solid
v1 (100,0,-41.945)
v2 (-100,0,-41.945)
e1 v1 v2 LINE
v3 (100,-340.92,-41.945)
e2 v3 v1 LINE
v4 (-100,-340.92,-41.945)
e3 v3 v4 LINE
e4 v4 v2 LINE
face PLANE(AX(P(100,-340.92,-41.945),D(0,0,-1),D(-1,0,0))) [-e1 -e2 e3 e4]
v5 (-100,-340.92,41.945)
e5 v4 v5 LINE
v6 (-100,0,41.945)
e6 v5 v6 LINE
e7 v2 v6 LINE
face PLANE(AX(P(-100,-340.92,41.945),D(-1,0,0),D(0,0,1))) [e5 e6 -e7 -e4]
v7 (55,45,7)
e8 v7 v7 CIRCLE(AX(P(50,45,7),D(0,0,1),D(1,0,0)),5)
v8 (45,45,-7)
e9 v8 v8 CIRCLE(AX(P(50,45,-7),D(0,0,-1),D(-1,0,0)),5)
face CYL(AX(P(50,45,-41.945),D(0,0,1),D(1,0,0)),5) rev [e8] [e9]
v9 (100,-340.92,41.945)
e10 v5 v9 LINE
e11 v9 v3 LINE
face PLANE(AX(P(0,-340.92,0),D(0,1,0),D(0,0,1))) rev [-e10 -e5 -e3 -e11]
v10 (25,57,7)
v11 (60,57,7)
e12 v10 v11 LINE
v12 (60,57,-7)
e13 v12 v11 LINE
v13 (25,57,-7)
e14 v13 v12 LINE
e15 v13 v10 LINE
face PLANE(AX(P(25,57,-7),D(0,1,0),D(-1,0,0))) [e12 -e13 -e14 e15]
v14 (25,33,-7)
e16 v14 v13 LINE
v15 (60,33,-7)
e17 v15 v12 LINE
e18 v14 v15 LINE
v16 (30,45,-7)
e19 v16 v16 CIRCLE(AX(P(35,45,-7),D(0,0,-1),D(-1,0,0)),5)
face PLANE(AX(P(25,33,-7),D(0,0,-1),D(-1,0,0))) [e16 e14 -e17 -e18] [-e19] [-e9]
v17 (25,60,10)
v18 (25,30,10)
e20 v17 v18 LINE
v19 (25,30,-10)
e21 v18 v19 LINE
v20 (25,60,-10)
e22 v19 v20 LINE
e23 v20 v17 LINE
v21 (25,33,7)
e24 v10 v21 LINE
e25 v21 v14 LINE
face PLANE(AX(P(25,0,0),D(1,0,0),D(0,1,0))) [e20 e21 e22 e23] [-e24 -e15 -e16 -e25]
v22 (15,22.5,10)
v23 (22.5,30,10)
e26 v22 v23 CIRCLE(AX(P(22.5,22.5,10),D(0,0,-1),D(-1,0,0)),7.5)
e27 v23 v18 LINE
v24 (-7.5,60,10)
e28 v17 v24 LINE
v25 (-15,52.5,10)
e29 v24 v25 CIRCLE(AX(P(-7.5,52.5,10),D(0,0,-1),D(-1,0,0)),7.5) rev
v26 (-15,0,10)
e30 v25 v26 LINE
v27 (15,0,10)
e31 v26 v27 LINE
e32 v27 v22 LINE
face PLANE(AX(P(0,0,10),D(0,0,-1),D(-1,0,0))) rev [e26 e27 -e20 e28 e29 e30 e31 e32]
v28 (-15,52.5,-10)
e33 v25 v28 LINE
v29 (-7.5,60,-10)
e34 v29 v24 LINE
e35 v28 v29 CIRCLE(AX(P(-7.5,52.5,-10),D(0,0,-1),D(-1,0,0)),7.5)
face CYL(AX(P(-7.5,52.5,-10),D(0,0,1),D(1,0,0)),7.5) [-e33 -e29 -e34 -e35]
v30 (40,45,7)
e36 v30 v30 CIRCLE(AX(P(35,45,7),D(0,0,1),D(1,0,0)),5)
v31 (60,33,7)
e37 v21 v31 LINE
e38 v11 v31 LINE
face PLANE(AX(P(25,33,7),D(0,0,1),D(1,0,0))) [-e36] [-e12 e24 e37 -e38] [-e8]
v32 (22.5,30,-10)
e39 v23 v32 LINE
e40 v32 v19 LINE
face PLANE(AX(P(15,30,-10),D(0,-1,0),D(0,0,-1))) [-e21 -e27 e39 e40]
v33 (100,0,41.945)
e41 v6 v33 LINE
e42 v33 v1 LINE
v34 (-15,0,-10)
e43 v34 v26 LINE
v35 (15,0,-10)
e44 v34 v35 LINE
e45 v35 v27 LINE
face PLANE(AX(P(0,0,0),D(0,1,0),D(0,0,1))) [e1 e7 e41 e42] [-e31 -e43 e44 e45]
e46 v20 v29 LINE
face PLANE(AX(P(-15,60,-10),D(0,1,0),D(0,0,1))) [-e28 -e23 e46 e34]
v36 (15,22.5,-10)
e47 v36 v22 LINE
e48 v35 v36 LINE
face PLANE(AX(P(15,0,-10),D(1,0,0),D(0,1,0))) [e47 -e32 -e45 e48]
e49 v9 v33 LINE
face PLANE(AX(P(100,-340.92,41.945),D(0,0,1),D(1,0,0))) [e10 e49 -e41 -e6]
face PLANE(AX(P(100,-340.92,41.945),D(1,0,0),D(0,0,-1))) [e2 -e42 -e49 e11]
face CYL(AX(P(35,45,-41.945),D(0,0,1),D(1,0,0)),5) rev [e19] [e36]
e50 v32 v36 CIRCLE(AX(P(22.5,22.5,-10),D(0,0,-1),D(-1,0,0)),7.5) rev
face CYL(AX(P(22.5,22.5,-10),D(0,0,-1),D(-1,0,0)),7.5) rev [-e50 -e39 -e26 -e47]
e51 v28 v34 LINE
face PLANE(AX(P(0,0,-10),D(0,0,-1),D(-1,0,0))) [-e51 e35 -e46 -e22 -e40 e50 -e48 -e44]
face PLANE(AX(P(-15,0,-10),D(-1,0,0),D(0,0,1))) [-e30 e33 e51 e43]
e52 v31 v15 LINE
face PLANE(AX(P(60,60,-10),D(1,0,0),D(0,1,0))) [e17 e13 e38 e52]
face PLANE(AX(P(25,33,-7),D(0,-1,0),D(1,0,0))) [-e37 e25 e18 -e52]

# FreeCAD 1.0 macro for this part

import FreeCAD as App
import Part
import Sketcher


def edges_at(feature, points):
    """Names of the edges that pass closest to the given points."""
    edges = feature.Shape.Edges
    near = lambda p: min(range(len(edges)), key=lambda i: edges[i].distToShape(Part.Vertex(*p))[0])
    return sorted({f"Edge{near(p) + 1}" for p in points})

doc = App.newDocument("Part")
body = doc.addObject("PartDesign::Body", "Body")

# Sketch on XZ plane
sketch1 = body.newObject("Sketcher::SketchObject", "Sketch")
sketch1.AttachmentSupport = (doc.getObject("XZ_Plane"), [""])
sketch1.MapMode = "FlatFace"
sketch1.addGeometry([
    Part.LineSegment(App.Vector(-100, -42, 0), App.Vector(-100, 42, 0)),
    Part.LineSegment(App.Vector(-100, 42, 0), App.Vector(100, 42, 0)),
    Part.LineSegment(App.Vector(100, 42, 0), App.Vector(100, -42, 0)),
    Part.LineSegment(App.Vector(100, -42, 0), App.Vector(-100, -42, 0)),
], False)
sketch1.addConstraint([
    Sketcher.Constraint("Coincident", 0, 2, 1, 1),
    Sketcher.Constraint("Coincident", 1, 2, 2, 1),
    Sketcher.Constraint("Coincident", 2, 2, 3, 1),
    Sketcher.Constraint("Coincident", 3, 2, 0, 1),
    Sketcher.Constraint("Vertical", 0),
    Sketcher.Constraint("Horizontal", 1),
    Sketcher.Constraint("Vertical", 2),
    Sketcher.Constraint("Horizontal", 3),
    Sketcher.Constraint("Symmetric", 0, 2, 2, 2, -1, 1),
    Sketcher.Constraint("DistanceX", 1, 1, 1, 2, 200.0),
    Sketcher.Constraint("DistanceY", 0, 1, 0, 2, 83.89),
])
pad1 = body.newObject("PartDesign::Pad", "Pad")
pad1.Profile = sketch1
pad1.Length = 340.92

# Sketch on XY plane
sketch2 = body.newObject("Sketcher::SketchObject", "Sketch001")
sketch2.AttachmentSupport = (doc.getObject("XY_Plane"), [""])
sketch2.MapMode = "FlatFace"
sketch2.addGeometry([
    Part.LineSegment(App.Vector(-15, 0, 0), App.Vector(15, 0, 0)),  # 0
    Part.LineSegment(App.Vector(15, 0, 0), App.Vector(15, 30, 0)),  # 1
    Part.LineSegment(App.Vector(15, 30, 0), App.Vector(60, 30, 0)),  # 2
    Part.LineSegment(App.Vector(60, 30, 0), App.Vector(60, 60, 0)),  # 3
    Part.LineSegment(App.Vector(60, 60, 0), App.Vector(-15, 60, 0)),  # 4
    Part.LineSegment(App.Vector(-15, 60, 0), App.Vector(-15, 0, 0)),  # 5
], False)
sketch2.addConstraint([
    Sketcher.Constraint("Coincident", 0, 2, 1, 1),
    Sketcher.Constraint("Coincident", 1, 2, 2, 1),
    Sketcher.Constraint("Coincident", 2, 2, 3, 1),
    Sketcher.Constraint("Coincident", 3, 2, 4, 1),
    Sketcher.Constraint("Coincident", 4, 2, 5, 1),
    Sketcher.Constraint("Coincident", 5, 2, 0, 1),
    Sketcher.Constraint("Horizontal", 0),
    Sketcher.Constraint("Vertical", 1),
    Sketcher.Constraint("Horizontal", 2),
    Sketcher.Constraint("Vertical", 3),
    Sketcher.Constraint("Horizontal", 4),
    Sketcher.Constraint("Vertical", 5),
    Sketcher.Constraint("Symmetric", 0, 2, 5, 2, -1, 1),
    Sketcher.Constraint("Equal", 0, 1),
    Sketcher.Constraint("Equal", 1, 3),
    Sketcher.Constraint("DistanceX", 0, 1, 0, 2, 30.0),
    Sketcher.Constraint("DistanceX", 2, 1, 2, 2, 45.0),
])
pad2 = body.newObject("PartDesign::Pad", "Pad001")
pad2.Profile = sketch2
pad2.Type = "TwoLengths"
pad2.Length = 10
pad2.Length2 = 10

# Sketch on YZ plane
sketch3 = body.newObject("Sketcher::SketchObject", "Sketch002")
sketch3.AttachmentSupport = (doc.getObject("YZ_Plane"), [""])
sketch3.MapMode = "FlatFace"
sketch3.AttachmentOffset = App.Placement(App.Vector(0, 0, 60), App.Rotation())
sketch3.addGeometry([
    Part.LineSegment(App.Vector(60, 10, 0), App.Vector(30, 10, 0)),  # 0
    Part.LineSegment(App.Vector(30, 10, 0), App.Vector(30, -10, 0)),  # 1
    Part.LineSegment(App.Vector(30, -10, 0), App.Vector(60, -10, 0)),  # 2
    Part.LineSegment(App.Vector(60, -10, 0), App.Vector(60, 10, 0)),  # 3
    Part.LineSegment(App.Vector(33, -7, 0), App.Vector(33, 7, 0)),  # 4
    Part.LineSegment(App.Vector(33, 7, 0), App.Vector(57, 7, 0)),  # 5
    Part.LineSegment(App.Vector(57, 7, 0), App.Vector(57, -7, 0)),  # 6
    Part.LineSegment(App.Vector(57, -7, 0), App.Vector(33, -7, 0)),  # 7
], False)
sketch3.addConstraint([
    Sketcher.Constraint("Coincident", 0, 2, 1, 1),
    Sketcher.Constraint("Coincident", 1, 2, 2, 1),
    Sketcher.Constraint("Coincident", 2, 2, 3, 1),
    Sketcher.Constraint("Coincident", 3, 2, 0, 1),
    Sketcher.Constraint("Coincident", 4, 2, 5, 1),
    Sketcher.Constraint("Coincident", 5, 2, 6, 1),
    Sketcher.Constraint("Coincident", 6, 2, 7, 1),
    Sketcher.Constraint("Coincident", 7, 2, 4, 1),
    Sketcher.Constraint("Horizontal", 0),
    Sketcher.Constraint("Vertical", 1),
    Sketcher.Constraint("Horizontal", 2),
    Sketcher.Constraint("Vertical", 3),
    Sketcher.Constraint("Vertical", 4),
    Sketcher.Constraint("Horizontal", 5),
    Sketcher.Constraint("Vertical", 6),
    Sketcher.Constraint("Horizontal", 7),
    Sketcher.Constraint("DistanceX", 0, 2, 0, 1, 30.0),
    Sketcher.Constraint("DistanceX", 5, 1, 5, 2, 24.0),
    Sketcher.Constraint("DistanceY", 1, 2, 1, 1, 20.0),
    Sketcher.Constraint("DistanceY", 4, 1, 4, 2, 14.0),
    Sketcher.Constraint("DistanceX", -1, 1, 0, 2, 30.0),
    Sketcher.Constraint("DistanceY", -1, 1, 0, 2, 10.0),
    Sketcher.Constraint("DistanceX", -1, 1, 4, 2, 33.0),
    Sketcher.Constraint("DistanceY", -1, 1, 4, 2, 7.0),
])
pocket1 = body.newObject("PartDesign::Pocket", "Pocket")
pocket1.Profile = sketch3
pocket1.Length = 35

# Sketch on XY plane
sketch4 = body.newObject("Sketcher::SketchObject", "Sketch003")
sketch4.AttachmentSupport = (doc.getObject("XY_Plane"), [""])
sketch4.MapMode = "FlatFace"
sketch4.AttachmentOffset = App.Placement(App.Vector(0, 0, 7), App.Rotation())
sketch4.addGeometry([
    Part.Circle(App.Vector(35, 45, 0), App.Vector(0, 0, 1), 5),
    Part.Circle(App.Vector(50, 45, 0), App.Vector(0, 0, 1), 5),
], False)
sketch4.addConstraint([
    Sketcher.Constraint("Equal", 0, 1),
    Sketcher.Constraint("Horizontal", 0, 3, 1, 3),
    Sketcher.Constraint("Diameter", 0, 10.0),
    Sketcher.Constraint("DistanceX", -1, 1, 0, 3, 35.0),
    Sketcher.Constraint("DistanceY", -1, 1, 0, 3, 45.0),
    Sketcher.Constraint("DistanceX", -1, 1, 1, 3, 50.0),
])
pocket2 = body.newObject("PartDesign::Pocket", "Pocket001")
pocket2.Profile = sketch4
pocket2.Type = "ThroughAll"
doc.recompute()

fillet = body.newObject("PartDesign::Fillet", "Fillet")
fillet.Base = (pocket2, edges_at(pocket2, [(-15, 60, 0), (15, 30, 0)]))
fillet.Radius = 7.5

doc.recompute()
